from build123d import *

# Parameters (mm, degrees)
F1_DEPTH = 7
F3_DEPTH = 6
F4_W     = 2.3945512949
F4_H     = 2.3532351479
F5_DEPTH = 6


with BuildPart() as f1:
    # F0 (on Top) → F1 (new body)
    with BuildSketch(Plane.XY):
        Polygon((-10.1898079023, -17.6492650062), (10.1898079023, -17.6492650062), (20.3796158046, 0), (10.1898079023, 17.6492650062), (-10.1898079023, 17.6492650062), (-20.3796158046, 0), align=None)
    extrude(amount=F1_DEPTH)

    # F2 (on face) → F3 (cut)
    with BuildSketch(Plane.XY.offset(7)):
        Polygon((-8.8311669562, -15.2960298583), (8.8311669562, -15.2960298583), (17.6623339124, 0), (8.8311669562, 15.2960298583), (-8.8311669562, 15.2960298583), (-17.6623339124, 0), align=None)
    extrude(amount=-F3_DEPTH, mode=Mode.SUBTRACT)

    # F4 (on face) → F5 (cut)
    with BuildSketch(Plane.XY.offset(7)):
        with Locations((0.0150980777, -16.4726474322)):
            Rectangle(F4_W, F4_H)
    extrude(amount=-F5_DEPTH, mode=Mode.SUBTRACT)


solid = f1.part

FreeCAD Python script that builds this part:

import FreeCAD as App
import Part
import Sketcher

V = App.Vector
Q = App.Units.Quantity


def add_polygon(sketch, points):
    """Adds a closed chain of lines whose ends are joined by coincident constraints."""
    first, n = sketch.GeometryCount, len(points)
    for a, b in zip(points, points[1:] + points[:1]):
        sketch.addGeometry(Part.LineSegment(App.Vector(*a, 0), App.Vector(*b, 0)), False)
    for i in range(n):
        sketch.addConstraint(Sketcher.Constraint("Coincident", first + i, 2, first + (i + 1) % n, 1))

doc = App.newDocument("Part")
body = doc.addObject("PartDesign::Body", "Body")

# Sketch on XY plane
sketch1 = doc.addObject("Sketcher::SketchObject", "Sketch")
body.addObject(sketch1)
sketch1.AttachmentSupport = (doc.XY_Plane, [""])
sketch1.MapMode = "FlatFace"
add_polygon(sketch1, [(-10, -18), (10, -18), (20, 0), (10, 18), (-10, 18), (-20, 0)])  # lines 0-5
sketch1.addConstraint([
    Sketcher.Constraint("Horizontal", 0),
    Sketcher.Constraint("Horizontal", 3),
    Sketcher.Constraint("Symmetric", 0, 2, 3, 2, -1, 1),
    Sketcher.Constraint("Symmetric", 1, 2, 4, 2, -1, 1),
    Sketcher.Constraint("PointOnObject", 1, 2, -1),
    Sketcher.Constraint("Parallel", 2, 5),
    Sketcher.Constraint("Vertical", 0, 2, 2, 2),
    Sketcher.Constraint("Angle", 1, Q("60 deg")),
    Sketcher.Constraint("DistanceX", 0, 1, 0, 2, Q("20.379616 mm")),
    Sketcher.Constraint("DistanceY", 0, 2, 2, 2, Q("35.29853 mm")),
])
pad1 = doc.addObject("PartDesign::Pad", "Pad")
body.addObject(pad1)
pad1.Profile = sketch1
pad1.Length = 7

# Sketch on XY plane
sketch2 = doc.addObject("Sketcher::SketchObject", "Sketch001")
body.addObject(sketch2)
sketch2.AttachmentSupport = (doc.XY_Plane, [""])
sketch2.MapMode = "FlatFace"
sketch2.AttachmentOffset = App.Placement(V(0, 0, 7), App.Rotation())
add_polygon(sketch2, [(-9, -15), (9, -15), (18, 0), (9, 15), (-9, 15), (-18, 0)])  # lines 0-5
sketch2.addConstraint([
    Sketcher.Constraint("Horizontal", 0),
    Sketcher.Constraint("Horizontal", 3),
    Sketcher.Constraint("Symmetric", 0, 2, 3, 2, -1, 1),
    Sketcher.Constraint("Symmetric", 1, 2, 4, 2, -1, 1),
    Sketcher.Constraint("PointOnObject", 1, 2, -1),
    Sketcher.Constraint("Parallel", 2, 5),
    Sketcher.Constraint("Vertical", 0, 2, 2, 2),
    Sketcher.Constraint("Angle", 1, Q("60 deg")),
    Sketcher.Constraint("DistanceX", 3, 2, 1, 2, Q("26.493501 mm")),
    Sketcher.Constraint("DistanceX", 0, 1, 0, 2, Q("17.662334 mm")),
])
pocket1 = doc.addObject("PartDesign::Pocket", "Pocket")
body.addObject(pocket1)
pocket1.Profile = sketch2
pocket1.Length = 6

# Sketch on XY plane
sketch3 = doc.addObject("Sketcher::SketchObject", "Sketch002")
body.addObject(sketch3)
sketch3.AttachmentSupport = (doc.XY_Plane, [""])
sketch3.MapMode = "FlatFace"
sketch3.AttachmentOffset = App.Placement(V(0, 0, 7), App.Rotation())
add_polygon(sketch3, [(-1.2, -15.3), (-1.2, -17.6), (1.2, -17.6), (1.2, -15.3)])  # lines 0-3
sketch3.addConstraint([
    Sketcher.Constraint("Vertical", 0),
    Sketcher.Constraint("Horizontal", 1),
    Sketcher.Constraint("Vertical", 2),
    Sketcher.Constraint("Horizontal", 3),
    Sketcher.Constraint("DistanceX", 1, 1, 1, 2, Q("2.394551 mm")),
    Sketcher.Constraint("DistanceY", 0, 2, 0, 1, Q("2.353235 mm")),
    Sketcher.Constraint("DistanceY", 2, 2, -1, 1, Q("15.29603 mm")),
    Sketcher.Constraint("DistanceX", 0, 2, -1, 1, Q("1.182178 mm")),
])
pocket2 = doc.addObject("PartDesign::Pocket", "Pocket001")
body.addObject(pocket2)
pocket2.Profile = sketch3
pocket2.Length = 6

doc.recompute()
